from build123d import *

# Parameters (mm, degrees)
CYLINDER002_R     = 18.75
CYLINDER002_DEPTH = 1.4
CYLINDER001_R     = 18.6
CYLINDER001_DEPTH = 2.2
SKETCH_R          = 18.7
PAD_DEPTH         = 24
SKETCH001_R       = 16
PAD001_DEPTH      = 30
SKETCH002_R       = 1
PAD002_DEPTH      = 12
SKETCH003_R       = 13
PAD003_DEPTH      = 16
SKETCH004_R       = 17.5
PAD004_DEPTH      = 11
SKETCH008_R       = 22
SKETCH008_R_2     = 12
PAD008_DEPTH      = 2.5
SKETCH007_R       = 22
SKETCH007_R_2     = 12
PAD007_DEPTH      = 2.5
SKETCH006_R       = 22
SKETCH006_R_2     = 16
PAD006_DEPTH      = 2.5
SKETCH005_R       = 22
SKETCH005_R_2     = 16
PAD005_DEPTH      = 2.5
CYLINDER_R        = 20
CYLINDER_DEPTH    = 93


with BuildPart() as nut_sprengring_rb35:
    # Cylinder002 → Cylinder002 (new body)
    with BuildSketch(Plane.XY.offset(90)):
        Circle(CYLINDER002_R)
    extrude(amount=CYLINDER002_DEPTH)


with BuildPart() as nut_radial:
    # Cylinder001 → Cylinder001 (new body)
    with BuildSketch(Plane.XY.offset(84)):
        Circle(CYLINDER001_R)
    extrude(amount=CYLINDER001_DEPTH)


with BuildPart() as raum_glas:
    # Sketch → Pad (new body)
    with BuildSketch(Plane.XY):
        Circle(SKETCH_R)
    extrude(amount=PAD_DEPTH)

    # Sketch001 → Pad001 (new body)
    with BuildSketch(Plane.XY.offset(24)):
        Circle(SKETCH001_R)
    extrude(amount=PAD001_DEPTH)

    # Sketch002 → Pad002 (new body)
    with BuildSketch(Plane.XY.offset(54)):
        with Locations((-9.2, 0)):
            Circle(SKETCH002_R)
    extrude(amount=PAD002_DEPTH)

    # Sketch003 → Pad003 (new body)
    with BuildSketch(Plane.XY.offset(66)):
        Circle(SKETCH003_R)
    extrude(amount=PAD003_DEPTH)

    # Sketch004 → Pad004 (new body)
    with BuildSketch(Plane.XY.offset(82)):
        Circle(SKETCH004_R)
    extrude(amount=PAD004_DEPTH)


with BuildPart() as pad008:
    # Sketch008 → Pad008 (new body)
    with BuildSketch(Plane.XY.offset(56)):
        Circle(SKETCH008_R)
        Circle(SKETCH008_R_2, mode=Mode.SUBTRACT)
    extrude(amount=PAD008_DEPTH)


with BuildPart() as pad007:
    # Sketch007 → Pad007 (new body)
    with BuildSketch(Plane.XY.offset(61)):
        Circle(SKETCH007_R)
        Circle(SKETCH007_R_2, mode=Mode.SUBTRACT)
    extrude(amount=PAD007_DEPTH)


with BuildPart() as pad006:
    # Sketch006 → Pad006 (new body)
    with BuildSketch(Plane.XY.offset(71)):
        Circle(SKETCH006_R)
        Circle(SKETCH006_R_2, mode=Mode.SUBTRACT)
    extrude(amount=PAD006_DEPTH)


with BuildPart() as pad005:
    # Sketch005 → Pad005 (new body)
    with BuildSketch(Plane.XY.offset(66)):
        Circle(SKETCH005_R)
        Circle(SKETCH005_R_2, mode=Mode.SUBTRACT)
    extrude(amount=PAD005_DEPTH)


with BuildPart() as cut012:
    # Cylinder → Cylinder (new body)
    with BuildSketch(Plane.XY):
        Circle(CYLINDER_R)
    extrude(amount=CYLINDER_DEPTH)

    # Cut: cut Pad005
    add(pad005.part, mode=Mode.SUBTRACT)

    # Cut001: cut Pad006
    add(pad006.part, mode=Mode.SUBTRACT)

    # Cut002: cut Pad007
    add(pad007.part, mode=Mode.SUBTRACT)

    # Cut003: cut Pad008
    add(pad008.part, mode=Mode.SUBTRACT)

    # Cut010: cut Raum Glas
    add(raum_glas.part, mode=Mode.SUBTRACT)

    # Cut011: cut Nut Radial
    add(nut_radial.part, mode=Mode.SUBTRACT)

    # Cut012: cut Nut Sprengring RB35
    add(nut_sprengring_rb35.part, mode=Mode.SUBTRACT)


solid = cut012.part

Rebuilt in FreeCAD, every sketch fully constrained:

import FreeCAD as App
import Part
import Sketcher

V = App.Vector
Q = App.Units.Quantity

doc = App.newDocument("Part")
body = doc.addObject("PartDesign::Body", "Body")

# Sketch on XY plane
sketch1 = body.newObject("Sketcher::SketchObject", "Sketch")
sketch1.AttachmentSupport = (doc.getObject("XY_Plane"), [""])
sketch1.MapMode = "FlatFace"
sketch1.AttachmentOffset = App.Placement(V(0, 0, 90), App.Rotation())
sketch1.addGeometry(Part.Circle(V(0, 0, 0), V(0, 0, 1), 18.75), False)
sketch1.addConstraint([
    Sketcher.Constraint("Coincident", 0, 3, -1, 1),
    Sketcher.Constraint("Diameter", 0, Q("37.5 mm")),
])
pad1 = body.newObject("PartDesign::Pad", "Pad")
pad1.Profile = sketch1
pad1.Length = 1.4
body2 = doc.addObject("PartDesign::Body", "Body001")

# Sketch on XY plane
sketch2 = body2.newObject("Sketcher::SketchObject", "Sketch001")
sketch2.AttachmentSupport = (doc.getObject("XY_Plane001"), [""])
sketch2.MapMode = "FlatFace"
sketch2.AttachmentOffset = App.Placement(V(0, 0, 84), App.Rotation())
sketch2.addGeometry(Part.Circle(V(0, 0, 0), V(0, 0, 1), 18.6), False)
sketch2.addConstraint([
    Sketcher.Constraint("Coincident", 0, 3, -1, 1),
    Sketcher.Constraint("Diameter", 0, Q("37.2 mm")),
])
pad2 = body2.newObject("PartDesign::Pad", "Pad001")
pad2.Profile = sketch2
pad2.Length = 2.2
body3 = doc.addObject("PartDesign::Body", "Body002")

# Sketch on XY plane
sketch3 = body3.newObject("Sketcher::SketchObject", "Sketch002")
sketch3.AttachmentSupport = (doc.getObject("XY_Plane002"), [""])
sketch3.MapMode = "FlatFace"
sketch3.addGeometry(Part.Circle(V(0, 0, 0), V(0, 0, 1), 18.7), False)
sketch3.addConstraint([
    Sketcher.Constraint("Coincident", 0, 3, -1, 1),
    Sketcher.Constraint("Diameter", 0, Q("37.4 mm")),
])
pad3 = body3.newObject("PartDesign::Pad", "Pad002")
pad3.Profile = sketch3
pad3.Length = 24

# Sketch on XY plane
sketch4 = body3.newObject("Sketcher::SketchObject", "Sketch003")
sketch4.AttachmentSupport = (doc.getObject("XY_Plane002"), [""])
sketch4.MapMode = "FlatFace"
sketch4.AttachmentOffset = App.Placement(V(0, 0, 24), App.Rotation())
sketch4.addGeometry(Part.Circle(V(0, 0, 0), V(0, 0, 1), 16), False)
sketch4.addConstraint([
    Sketcher.Constraint("Coincident", 0, 3, -1, 1),
    Sketcher.Constraint("Diameter", 0, Q("32 mm")),
])
pad4 = body3.newObject("PartDesign::Pad", "Pad003")
pad4.Profile = sketch4
pad4.Length = 30

# Sketch on XY plane
sketch5 = body3.newObject("Sketcher::SketchObject", "Sketch004")
sketch5.AttachmentSupport = (doc.getObject("XY_Plane002"), [""])
sketch5.MapMode = "FlatFace"
sketch5.AttachmentOffset = App.Placement(V(0, 0, 54), App.Rotation())
sketch5.addGeometry(Part.Circle(V(-9.2, 0, 0), V(0, 0, 1), 1), False)
sketch5.addConstraint([
    Sketcher.Constraint("PointOnObject", 0, 3, -1),
    Sketcher.Constraint("Diameter", 0, Q("2 mm")),
    Sketcher.Constraint("DistanceX", 0, 3, -1, 1, Q("9.2 mm")),
])
pad5 = body3.newObject("PartDesign::Pad", "Pad004")
pad5.Profile = sketch5
pad5.Length = 12

# Sketch on XY plane
sketch6 = body3.newObject("Sketcher::SketchObject", "Sketch005")
sketch6.AttachmentSupport = (doc.getObject("XY_Plane002"), [""])
sketch6.MapMode = "FlatFace"
sketch6.AttachmentOffset = App.Placement(V(0, 0, 66), App.Rotation())
sketch6.addGeometry(Part.Circle(V(0, 0, 0), V(0, 0, 1), 13), False)
sketch6.addConstraint([
    Sketcher.Constraint("Coincident", 0, 3, -1, 1),
    Sketcher.Constraint("Diameter", 0, Q("26 mm")),
])
pad6 = body3.newObject("PartDesign::Pad", "Pad005")
pad6.Profile = sketch6
pad6.Length = 16

# Sketch on XY plane
sketch7 = body3.newObject("Sketcher::SketchObject", "Sketch006")
sketch7.AttachmentSupport = (doc.getObject("XY_Plane002"), [""])
sketch7.MapMode = "FlatFace"
sketch7.AttachmentOffset = App.Placement(V(0, 0, 82), App.Rotation())
sketch7.addGeometry(Part.Circle(V(0, 0, 0), V(0, 0, 1), 17.5), False)
sketch7.addConstraint([
    Sketcher.Constraint("Coincident", 0, 3, -1, 1),
    Sketcher.Constraint("Diameter", 0, Q("35 mm")),
])
pad7 = body3.newObject("PartDesign::Pad", "Pad006")
pad7.Profile = sketch7
pad7.Length = 11
body4 = doc.addObject("PartDesign::Body", "Body003")

# Sketch on XY plane
sketch8 = body4.newObject("Sketcher::SketchObject", "Sketch007")
sketch8.AttachmentSupport = (doc.getObject("XY_Plane003"), [""])
sketch8.MapMode = "FlatFace"
sketch8.AttachmentOffset = App.Placement(V(0, 0, 56), App.Rotation())
sketch8.addGeometry([
    Part.Circle(V(0, 0, 0), V(0, 0, 1), 22),
    Part.Circle(V(0, 0, 0), V(0, 0, 1), 12),
], False)
sketch8.addConstraint([
    Sketcher.Constraint("Coincident", 0, 3, -1, 1),
    Sketcher.Constraint("Coincident", 1, 3, -1, 1),
    Sketcher.Constraint("Diameter", 0, Q("44 mm")),
    Sketcher.Constraint("Diameter", 1, Q("24 mm")),
])
pad8 = body4.newObject("PartDesign::Pad", "Pad007")
pad8.Profile = sketch8
pad8.Length = 2.5
body5 = doc.addObject("PartDesign::Body", "Body004")

# Sketch on XY plane
sketch9 = body5.newObject("Sketcher::SketchObject", "Sketch008")
sketch9.AttachmentSupport = (doc.getObject("XY_Plane004"), [""])
sketch9.MapMode = "FlatFace"
sketch9.AttachmentOffset = App.Placement(V(0, 0, 61), App.Rotation())
sketch9.addGeometry([
    Part.Circle(V(0, 0, 0), V(0, 0, 1), 22),
    Part.Circle(V(0, 0, 0), V(0, 0, 1), 12),
], False)
sketch9.addConstraint([
    Sketcher.Constraint("Coincident", 0, 3, -1, 1),
    Sketcher.Constraint("Coincident", 1, 3, -1, 1),
    Sketcher.Constraint("Diameter", 0, Q("44 mm")),
    Sketcher.Constraint("Diameter", 1, Q("24 mm")),
])
pad9 = body5.newObject("PartDesign::Pad", "Pad008")
pad9.Profile = sketch9
pad9.Length = 2.5
body6 = doc.addObject("PartDesign::Body", "Body005")

# Sketch on XY plane
sketch10 = body6.newObject("Sketcher::SketchObject", "Sketch009")
sketch10.AttachmentSupport = (doc.getObject("XY_Plane005"), [""])
sketch10.MapMode = "FlatFace"
sketch10.AttachmentOffset = App.Placement(V(0, 0, 71), App.Rotation())
sketch10.addGeometry([
    Part.Circle(V(0, 0, 0), V(0, 0, 1), 22),
    Part.Circle(V(0, 0, 0), V(0, 0, 1), 16),
], False)
sketch10.addConstraint([
    Sketcher.Constraint("Coincident", 0, 3, -1, 1),
    Sketcher.Constraint("Coincident", 1, 3, -1, 1),
    Sketcher.Constraint("Diameter", 0, Q("44 mm")),
    Sketcher.Constraint("Diameter", 1, Q("32 mm")),
])
pad10 = body6.newObject("PartDesign::Pad", "Pad009")
pad10.Profile = sketch10
pad10.Length = 2.5
body7 = doc.addObject("PartDesign::Body", "Body006")

# Sketch on XY plane
sketch11 = body7.newObject("Sketcher::SketchObject", "Sketch010")
sketch11.AttachmentSupport = (doc.getObject("XY_Plane006"), [""])
sketch11.MapMode = "FlatFace"
sketch11.AttachmentOffset = App.Placement(V(0, 0, 66), App.Rotation())
sketch11.addGeometry([
    Part.Circle(V(0, 0, 0), V(0, 0, 1), 22),
    Part.Circle(V(0, 0, 0), V(0, 0, 1), 16),
], False)
sketch11.addConstraint([
    Sketcher.Constraint("Coincident", 0, 3, -1, 1),
    Sketcher.Constraint("Coincident", 1, 3, -1, 1),
    Sketcher.Constraint("Diameter", 0, Q("44 mm")),
    Sketcher.Constraint("Diameter", 1, Q("32 mm")),
])
pad11 = body7.newObject("PartDesign::Pad", "Pad010")
pad11.Profile = sketch11
pad11.Length = 2.5
body8 = doc.addObject("PartDesign::Body", "Body007")

# Sketch on XY plane
sketch12 = body8.newObject("Sketcher::SketchObject", "Sketch011")
sketch12.AttachmentSupport = (doc.getObject("XY_Plane007"), [""])
sketch12.MapMode = "FlatFace"
sketch12.addGeometry(Part.Circle(V(0, 0, 0), V(0, 0, 1), 20), False)
sketch12.addConstraint([
    Sketcher.Constraint("Coincident", 0, 3, -1, 1),
    Sketcher.Constraint("Diameter", 0, Q("40 mm")),
])
pad12 = body8.newObject("PartDesign::Pad", "Pad011")
pad12.Profile = sketch12
pad12.Length = 93
doc.recompute()

boolean = body8.newObject("PartDesign::Boolean", "Boolean")
boolean.Type = "Cut"
boolean.addObjects([body7])
doc.recompute()

boolean2 = body8.newObject("PartDesign::Boolean", "Boolean001")
boolean2.Type = "Cut"
boolean2.addObjects([body6])
doc.recompute()

boolean3 = body8.newObject("PartDesign::Boolean", "Boolean002")
boolean3.Type = "Cut"
boolean3.addObjects([body5])
doc.recompute()

boolean4 = body8.newObject("PartDesign::Boolean", "Boolean003")
boolean4.Type = "Cut"
boolean4.addObjects([body4])
doc.recompute()

boolean5 = body8.newObject("PartDesign::Boolean", "Boolean004")
boolean5.Type = "Cut"
boolean5.addObjects([body3])
doc.recompute()

boolean6 = body8.newObject("PartDesign::Boolean", "Boolean005")
boolean6.Type = "Cut"
boolean6.addObjects([body2])
doc.recompute()

boolean7 = body8.newObject("PartDesign::Boolean", "Boolean006")
boolean7.Type = "Cut"
boolean7.addObjects([body])

doc.recompute()
